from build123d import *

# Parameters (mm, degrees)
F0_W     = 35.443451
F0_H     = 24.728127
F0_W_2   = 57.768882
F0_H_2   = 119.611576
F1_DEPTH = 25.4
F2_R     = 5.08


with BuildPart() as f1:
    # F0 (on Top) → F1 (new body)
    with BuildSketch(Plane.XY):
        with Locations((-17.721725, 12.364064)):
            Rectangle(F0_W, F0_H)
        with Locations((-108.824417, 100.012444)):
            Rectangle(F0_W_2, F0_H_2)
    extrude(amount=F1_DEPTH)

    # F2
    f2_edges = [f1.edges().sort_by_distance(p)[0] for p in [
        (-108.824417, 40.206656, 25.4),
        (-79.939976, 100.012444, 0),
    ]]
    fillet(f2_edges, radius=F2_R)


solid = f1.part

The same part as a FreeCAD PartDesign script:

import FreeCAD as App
import Part
import Sketcher

V = App.Vector
Q = App.Units.Quantity


def edges_at(feature, points):
    """Names of the edges that pass closest to the given points."""
    edges = feature.Shape.Edges
    near = lambda p: min(range(len(edges)), key=lambda i: edges[i].distToShape(Part.Vertex(*p))[0])
    return sorted({f"Edge{near(p) + 1}" for p in points})


def add_polygon(sketch, points):
    """Adds a closed chain of lines whose ends are joined by coincident constraints."""
    first, n = sketch.GeometryCount, len(points)
    for a, b in zip(points, points[1:] + points[:1]):
        sketch.addGeometry(Part.LineSegment(App.Vector(*a, 0), App.Vector(*b, 0)), False)
    for i in range(n):
        sketch.addConstraint(Sketcher.Constraint("Coincident", first + i, 2, first + (i + 1) % n, 1))

doc = App.newDocument("Part")
body = doc.addObject("PartDesign::Body", "Body")
body.AllowCompound = True

# Sketch on XY plane
sketch1 = body.newObject("Sketcher::SketchObject", "Sketch")
sketch1.AttachmentSupport = (doc.getObject("XY_Plane"), [""])
sketch1.MapMode = "FlatFace"
add_polygon(sketch1, [(-35, 25), (-35, 0), (0, 0), (0, 25)])  # lines 0-3
add_polygon(sketch1, [(-138, 160), (-138, 40), (-80, 40), (-80, 160)])  # lines 4-7
sketch1.addConstraint([
    Sketcher.Constraint("Vertical", 0),
    Sketcher.Constraint("Horizontal", 1),
    Sketcher.Constraint("Vertical", 2),
    Sketcher.Constraint("Horizontal", 3),
    Sketcher.Constraint("Vertical", 4),
    Sketcher.Constraint("Horizontal", 5),
    Sketcher.Constraint("Vertical", 6),
    Sketcher.Constraint("Horizontal", 7),
    Sketcher.Constraint("Coincident", 1, 2, -1, 1),
    Sketcher.Constraint("DistanceX", 1, 1, 1, 2, 35.443451),
    Sketcher.Constraint("DistanceX", 5, 1, 5, 2, 57.768882),
    Sketcher.Constraint("DistanceY", 0, 2, 0, 1, 24.728127),
    Sketcher.Constraint("DistanceY", 4, 2, 4, 1, 119.611576),
    Sketcher.Constraint("DistanceX", 4, 2, -1, 1, 137.708858),
    Sketcher.Constraint("DistanceY", -1, 1, 6, 2, 159.818232),
])
pad1 = body.newObject("PartDesign::Pad", "Pad")
pad1.Profile = sketch1
pad1.Length = Q("1 in")
doc.recompute()

fillet = body.newObject("PartDesign::Fillet", "Fillet")
fillet.Base = (pad1, edges_at(pad1, [(-108.824, 40.207, 25.4), (-79.94, 100.012, 0)]))
fillet.Radius = Q("0.2 in")

doc.recompute()
